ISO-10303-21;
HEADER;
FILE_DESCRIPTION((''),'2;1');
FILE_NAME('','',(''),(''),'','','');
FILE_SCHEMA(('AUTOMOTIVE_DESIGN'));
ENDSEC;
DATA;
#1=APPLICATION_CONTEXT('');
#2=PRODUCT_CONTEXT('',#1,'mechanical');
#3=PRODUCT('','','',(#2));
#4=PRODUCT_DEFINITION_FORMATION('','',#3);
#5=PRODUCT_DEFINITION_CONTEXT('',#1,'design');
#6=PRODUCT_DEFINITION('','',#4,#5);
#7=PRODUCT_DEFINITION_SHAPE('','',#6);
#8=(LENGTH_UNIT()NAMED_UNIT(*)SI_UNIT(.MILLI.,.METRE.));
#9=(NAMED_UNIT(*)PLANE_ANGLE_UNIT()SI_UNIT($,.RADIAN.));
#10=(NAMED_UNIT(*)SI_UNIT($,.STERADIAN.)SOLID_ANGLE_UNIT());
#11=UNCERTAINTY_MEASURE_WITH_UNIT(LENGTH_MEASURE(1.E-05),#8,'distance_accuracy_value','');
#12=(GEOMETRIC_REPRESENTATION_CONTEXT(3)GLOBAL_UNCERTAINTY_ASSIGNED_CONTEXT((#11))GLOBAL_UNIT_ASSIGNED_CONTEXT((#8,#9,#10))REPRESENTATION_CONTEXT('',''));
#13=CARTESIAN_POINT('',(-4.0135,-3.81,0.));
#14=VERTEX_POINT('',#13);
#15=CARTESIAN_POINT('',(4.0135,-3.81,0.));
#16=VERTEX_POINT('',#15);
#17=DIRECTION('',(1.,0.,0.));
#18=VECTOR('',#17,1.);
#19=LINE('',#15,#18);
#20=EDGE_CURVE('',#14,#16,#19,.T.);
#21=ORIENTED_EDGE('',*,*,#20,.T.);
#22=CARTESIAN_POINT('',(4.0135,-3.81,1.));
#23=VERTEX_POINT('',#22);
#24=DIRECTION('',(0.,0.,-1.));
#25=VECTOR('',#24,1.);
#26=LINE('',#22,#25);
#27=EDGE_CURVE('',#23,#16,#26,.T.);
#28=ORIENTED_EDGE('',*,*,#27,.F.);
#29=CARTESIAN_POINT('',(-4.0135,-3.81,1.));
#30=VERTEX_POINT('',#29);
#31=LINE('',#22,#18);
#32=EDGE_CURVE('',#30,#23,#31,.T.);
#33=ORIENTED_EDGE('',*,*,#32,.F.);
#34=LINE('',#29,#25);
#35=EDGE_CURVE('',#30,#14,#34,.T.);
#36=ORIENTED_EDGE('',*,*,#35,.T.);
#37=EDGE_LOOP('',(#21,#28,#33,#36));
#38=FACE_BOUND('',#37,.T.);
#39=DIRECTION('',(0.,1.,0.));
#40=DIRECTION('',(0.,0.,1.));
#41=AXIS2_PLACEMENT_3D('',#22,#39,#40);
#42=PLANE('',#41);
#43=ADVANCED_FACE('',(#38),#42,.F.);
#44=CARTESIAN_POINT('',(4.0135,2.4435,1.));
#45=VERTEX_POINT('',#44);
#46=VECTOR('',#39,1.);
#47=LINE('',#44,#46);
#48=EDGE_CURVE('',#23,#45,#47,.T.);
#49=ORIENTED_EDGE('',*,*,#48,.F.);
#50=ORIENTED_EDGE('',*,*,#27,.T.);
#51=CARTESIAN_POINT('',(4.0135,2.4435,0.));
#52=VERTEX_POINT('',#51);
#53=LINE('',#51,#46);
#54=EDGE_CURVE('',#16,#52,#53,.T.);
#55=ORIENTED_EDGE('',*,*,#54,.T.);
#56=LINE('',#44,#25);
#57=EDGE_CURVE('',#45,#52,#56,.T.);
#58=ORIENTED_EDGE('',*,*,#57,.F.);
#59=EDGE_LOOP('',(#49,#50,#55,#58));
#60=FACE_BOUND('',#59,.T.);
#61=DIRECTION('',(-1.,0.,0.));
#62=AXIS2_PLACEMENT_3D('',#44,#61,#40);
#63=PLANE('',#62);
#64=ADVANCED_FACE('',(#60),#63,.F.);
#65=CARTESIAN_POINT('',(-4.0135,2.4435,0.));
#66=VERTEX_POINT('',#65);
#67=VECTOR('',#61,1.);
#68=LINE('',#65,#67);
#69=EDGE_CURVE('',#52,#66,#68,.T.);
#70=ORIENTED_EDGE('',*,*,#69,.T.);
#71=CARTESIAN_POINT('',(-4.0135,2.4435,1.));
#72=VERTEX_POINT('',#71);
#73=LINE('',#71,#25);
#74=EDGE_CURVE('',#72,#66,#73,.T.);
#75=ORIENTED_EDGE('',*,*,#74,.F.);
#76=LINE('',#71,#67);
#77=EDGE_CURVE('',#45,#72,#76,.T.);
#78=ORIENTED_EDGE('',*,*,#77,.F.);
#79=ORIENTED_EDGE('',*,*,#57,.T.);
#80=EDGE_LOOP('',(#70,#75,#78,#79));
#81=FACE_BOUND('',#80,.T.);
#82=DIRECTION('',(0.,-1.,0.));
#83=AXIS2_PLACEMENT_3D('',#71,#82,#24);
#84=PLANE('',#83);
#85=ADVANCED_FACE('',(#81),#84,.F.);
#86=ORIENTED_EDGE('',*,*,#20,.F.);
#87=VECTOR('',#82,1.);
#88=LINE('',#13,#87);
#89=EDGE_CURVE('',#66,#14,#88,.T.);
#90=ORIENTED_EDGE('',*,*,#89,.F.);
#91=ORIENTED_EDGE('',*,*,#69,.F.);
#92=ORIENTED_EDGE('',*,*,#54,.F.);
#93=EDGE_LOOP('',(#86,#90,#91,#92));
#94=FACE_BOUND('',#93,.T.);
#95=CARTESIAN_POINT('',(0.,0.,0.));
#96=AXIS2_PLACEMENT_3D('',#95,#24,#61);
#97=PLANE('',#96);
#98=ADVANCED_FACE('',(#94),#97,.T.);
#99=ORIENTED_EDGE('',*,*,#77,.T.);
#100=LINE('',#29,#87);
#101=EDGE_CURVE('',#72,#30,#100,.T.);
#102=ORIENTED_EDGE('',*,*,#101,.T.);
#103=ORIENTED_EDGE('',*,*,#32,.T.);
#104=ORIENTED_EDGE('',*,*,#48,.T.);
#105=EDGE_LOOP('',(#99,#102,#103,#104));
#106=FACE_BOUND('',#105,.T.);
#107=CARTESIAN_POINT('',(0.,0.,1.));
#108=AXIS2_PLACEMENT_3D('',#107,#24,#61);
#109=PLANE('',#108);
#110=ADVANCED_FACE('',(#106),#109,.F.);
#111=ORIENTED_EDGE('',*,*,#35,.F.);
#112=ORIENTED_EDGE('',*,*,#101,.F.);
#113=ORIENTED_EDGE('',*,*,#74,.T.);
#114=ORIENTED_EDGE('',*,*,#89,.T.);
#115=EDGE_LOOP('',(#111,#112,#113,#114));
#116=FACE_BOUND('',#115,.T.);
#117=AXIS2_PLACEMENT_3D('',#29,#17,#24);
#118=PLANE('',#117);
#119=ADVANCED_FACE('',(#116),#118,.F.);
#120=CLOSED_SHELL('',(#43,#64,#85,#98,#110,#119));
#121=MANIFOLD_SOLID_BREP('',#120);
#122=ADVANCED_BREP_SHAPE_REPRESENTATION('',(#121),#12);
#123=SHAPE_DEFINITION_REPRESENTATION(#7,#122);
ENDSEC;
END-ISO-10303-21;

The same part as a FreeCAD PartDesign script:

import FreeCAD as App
import Part
import Sketcher
Q = App.Units.Quantity

doc = App.newDocument("Part")
params = doc.addObject("Spreadsheet::Sheet", "Params")
for row, (alias, value) in enumerate([
    ("pad1_length", "1 mm"),
], start=1):
    params.set(f"A{row}", alias)
    params.set(f"B{row}", "=" + value)
    params.setAlias(f"B{row}", alias)

body = doc.addObject("PartDesign::Body", "Body")

# Sketch on XY plane
sketch1 = body.newObject("Sketcher::SketchObject", "Sketch")
sketch1.AttachmentSupport = (doc.getObject("XY_Plane"), [""])
sketch1.MapMode = "FlatFace"
sketch1.addGeometry(Part.LineSegment(App.Vector(-4, 2, 0), App.Vector(-4, -4, 0)), False)
sketch1.addGeometry(Part.LineSegment(App.Vector(-4, -4, 0), App.Vector(4, -4, 0)), False)
sketch1.addGeometry(Part.LineSegment(App.Vector(4, -4, 0), App.Vector(4, 2, 0)), False)
sketch1.addGeometry(Part.LineSegment(App.Vector(4, 2, 0), App.Vector(-4, 2, 0)), False)
sketch1.addConstraint(Sketcher.Constraint("Coincident", 0, 2, 1, 1))
sketch1.addConstraint(Sketcher.Constraint("Coincident", 1, 2, 2, 1))
sketch1.addConstraint(Sketcher.Constraint("Coincident", 2, 2, 3, 1))
sketch1.addConstraint(Sketcher.Constraint("Coincident", 3, 2, 0, 1))
sketch1.addConstraint(Sketcher.Constraint("Vertical", 0))
sketch1.addConstraint(Sketcher.Constraint("Horizontal", 1))
sketch1.addConstraint(Sketcher.Constraint("Vertical", 2))
sketch1.addConstraint(Sketcher.Constraint("Horizontal", 3))
sketch1.addConstraint(Sketcher.Constraint("DistanceX", 1, 1, 1, 2, Q("8.027 mm")))
sketch1.addConstraint(Sketcher.Constraint("DistanceY", 0, 2, -1, 1, Q("3.81 mm")))
sketch1.addConstraint(Sketcher.Constraint("DistanceY", 0, 2, 0, 1, Q("6.2535 mm")))
sketch1.addConstraint(Sketcher.Constraint("DistanceX", 0, 2, -1, 1, Q("4.0135 mm")))
pad1 = body.newObject("PartDesign::Pad", "Pad")
pad1.Profile = sketch1
pad1.setExpression("Length", "Params.pad1_length")

doc.recompute()
